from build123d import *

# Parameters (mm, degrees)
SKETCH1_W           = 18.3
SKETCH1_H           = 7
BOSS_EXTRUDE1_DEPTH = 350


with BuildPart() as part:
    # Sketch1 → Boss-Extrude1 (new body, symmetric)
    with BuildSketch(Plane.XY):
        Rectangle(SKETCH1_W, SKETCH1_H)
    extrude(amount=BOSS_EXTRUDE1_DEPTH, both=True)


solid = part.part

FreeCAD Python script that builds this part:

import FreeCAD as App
import Part
import Sketcher
from FreeCAD import Vector
Q = App.Units.Quantity


def add_polygon(sketch, points):
    """Adds a closed chain of lines whose ends are joined by coincident constraints."""
    first, n = sketch.GeometryCount, len(points)
    for a, b in zip(points, points[1:] + points[:1]):
        sketch.addGeometry(Part.LineSegment(App.Vector(*a, 0), App.Vector(*b, 0)), False)
    for i in range(n):
        sketch.addConstraint(Sketcher.Constraint("Coincident", first + i, 2, first + (i + 1) % n, 1))

doc = App.newDocument("Part")
body = doc.addObject("PartDesign::Body", "Body")

sketch1 = body.newObject("Sketcher::SketchObject", "Sketch")
sketch1.AttachmentSupport = (doc.getObject("XY_Plane"), [""])
sketch1.MapMode = "FlatFace"
add_polygon(sketch1, [(-9, 4), (-9, -4), (9, -4), (9, 4)])
sketch1.addConstraint([
    Sketcher.Constraint("Vertical", 0),
    Sketcher.Constraint("Horizontal", 1),
    Sketcher.Constraint("Vertical", 2),
    Sketcher.Constraint("Horizontal", 3),
    Sketcher.Constraint("Symmetric", 0, 2, 2, 2, -1, 1),
    Sketcher.Constraint("DistanceY", 0, 2, 0, 1, Q("7 mm")),
    Sketcher.Constraint("DistanceX", 1, 1, 1, 2, Q("18.3 mm")),
])
pad1 = body.newObject("PartDesign::Pad", "Pad")
pad1.Profile = sketch1
pad1.Length = 700
pad1.Midplane = True

doc.recompute()
